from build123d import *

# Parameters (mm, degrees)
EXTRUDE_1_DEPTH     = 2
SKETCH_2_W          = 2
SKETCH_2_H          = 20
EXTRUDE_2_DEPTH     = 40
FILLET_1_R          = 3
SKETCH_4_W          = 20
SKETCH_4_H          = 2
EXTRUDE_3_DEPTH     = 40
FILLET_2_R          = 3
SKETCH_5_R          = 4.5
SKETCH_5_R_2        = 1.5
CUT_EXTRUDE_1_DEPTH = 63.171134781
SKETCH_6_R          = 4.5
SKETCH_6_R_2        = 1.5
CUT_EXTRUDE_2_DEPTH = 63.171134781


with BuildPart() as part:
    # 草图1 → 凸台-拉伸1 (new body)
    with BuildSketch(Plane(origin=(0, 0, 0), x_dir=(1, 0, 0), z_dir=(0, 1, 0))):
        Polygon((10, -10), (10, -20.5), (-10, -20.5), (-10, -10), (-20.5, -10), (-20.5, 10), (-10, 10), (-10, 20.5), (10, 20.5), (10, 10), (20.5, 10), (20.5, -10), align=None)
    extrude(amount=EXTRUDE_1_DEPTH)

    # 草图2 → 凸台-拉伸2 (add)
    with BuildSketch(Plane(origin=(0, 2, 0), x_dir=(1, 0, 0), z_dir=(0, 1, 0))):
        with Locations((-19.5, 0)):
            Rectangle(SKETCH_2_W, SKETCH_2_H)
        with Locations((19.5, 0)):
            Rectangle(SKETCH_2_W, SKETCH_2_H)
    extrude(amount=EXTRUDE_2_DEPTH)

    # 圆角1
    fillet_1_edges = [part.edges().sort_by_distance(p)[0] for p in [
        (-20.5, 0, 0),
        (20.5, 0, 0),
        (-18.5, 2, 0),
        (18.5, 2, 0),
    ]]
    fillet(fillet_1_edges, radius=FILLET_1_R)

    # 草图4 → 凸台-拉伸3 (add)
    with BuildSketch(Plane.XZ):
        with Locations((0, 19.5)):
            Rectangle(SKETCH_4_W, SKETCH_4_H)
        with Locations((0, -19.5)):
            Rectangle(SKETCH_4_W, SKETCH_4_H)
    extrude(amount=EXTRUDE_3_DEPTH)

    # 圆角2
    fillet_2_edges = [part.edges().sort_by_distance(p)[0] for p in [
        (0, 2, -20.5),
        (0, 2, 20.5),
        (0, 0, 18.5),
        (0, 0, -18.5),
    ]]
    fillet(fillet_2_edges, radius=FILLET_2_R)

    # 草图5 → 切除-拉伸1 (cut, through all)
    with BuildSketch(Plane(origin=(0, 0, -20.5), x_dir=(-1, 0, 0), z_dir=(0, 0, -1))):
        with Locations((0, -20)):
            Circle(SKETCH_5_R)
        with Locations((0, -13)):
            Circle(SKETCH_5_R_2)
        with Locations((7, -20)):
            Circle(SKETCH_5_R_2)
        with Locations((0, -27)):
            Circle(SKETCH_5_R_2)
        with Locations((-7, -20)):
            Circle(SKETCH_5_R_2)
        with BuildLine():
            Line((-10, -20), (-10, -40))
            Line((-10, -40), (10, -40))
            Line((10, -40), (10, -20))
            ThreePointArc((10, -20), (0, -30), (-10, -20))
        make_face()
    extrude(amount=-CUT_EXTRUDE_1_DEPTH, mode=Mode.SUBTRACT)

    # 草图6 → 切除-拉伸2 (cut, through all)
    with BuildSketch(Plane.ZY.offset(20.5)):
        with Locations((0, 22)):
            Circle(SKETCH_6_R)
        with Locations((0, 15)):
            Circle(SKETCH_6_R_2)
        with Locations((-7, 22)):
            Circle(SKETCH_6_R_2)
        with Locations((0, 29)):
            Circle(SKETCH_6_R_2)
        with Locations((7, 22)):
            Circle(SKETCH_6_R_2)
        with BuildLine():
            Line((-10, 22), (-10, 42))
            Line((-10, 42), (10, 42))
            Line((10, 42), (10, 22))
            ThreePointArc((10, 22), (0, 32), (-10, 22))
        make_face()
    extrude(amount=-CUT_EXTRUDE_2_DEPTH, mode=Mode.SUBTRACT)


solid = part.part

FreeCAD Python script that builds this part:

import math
import FreeCAD as App
import Part
import Sketcher

V = App.Vector


def edges_at(feature, points):
    """Names of the edges that pass closest to the given points."""
    edges = feature.Shape.Edges
    near = lambda p: min(range(len(edges)), key=lambda i: edges[i].distToShape(Part.Vertex(*p))[0])
    return sorted({f"Edge{near(p) + 1}" for p in points})

doc = App.newDocument("Part")
body = doc.addObject("PartDesign::Body", "Body")

sketch1 = body.newObject("Sketcher::SketchObject", "Sketch")
sketch1.AttachmentSupport = (doc.getObject("XZ_Plane"), [""])
sketch1.MapMode = "FlatFace"
sketch1.addGeometry([
    Part.LineSegment(V(10, 20, 0), V(10, 10, 0)),
    Part.LineSegment(V(10, 10, 0), V(20, 10, 0)),
    Part.LineSegment(V(20, 10, 0), V(20, -10, 0)),
    Part.LineSegment(V(20, -10, 0), V(10, -10, 0)),
    Part.LineSegment(V(10, -10, 0), V(10, -20, 0)),
    Part.LineSegment(V(10, -20, 0), V(-10, -20, 0)),
    Part.LineSegment(V(-10, -20, 0), V(-10, -10, 0)),
    Part.LineSegment(V(-10, -10, 0), V(-20, -10, 0)),
    Part.LineSegment(V(-20, -10, 0), V(-20, 10, 0)),
    Part.LineSegment(V(-20, 10, 0), V(-10, 10, 0)),
    Part.LineSegment(V(-10, 10, 0), V(-10, 20, 0)),
    Part.LineSegment(V(-10, 20, 0), V(10, 20, 0)),
], False)
sketch1.addConstraint([
    Sketcher.Constraint("Coincident", 0, 2, 1, 1),
    Sketcher.Constraint("Coincident", 1, 2, 2, 1),
    Sketcher.Constraint("Coincident", 2, 2, 3, 1),
    Sketcher.Constraint("Coincident", 3, 2, 4, 1),
    Sketcher.Constraint("Coincident", 4, 2, 5, 1),
    Sketcher.Constraint("Coincident", 5, 2, 6, 1),
    Sketcher.Constraint("Coincident", 6, 2, 7, 1),
    Sketcher.Constraint("Coincident", 7, 2, 8, 1),
    Sketcher.Constraint("Coincident", 8, 2, 9, 1),
    Sketcher.Constraint("Coincident", 9, 2, 10, 1),
    Sketcher.Constraint("Coincident", 10, 2, 11, 1),
    Sketcher.Constraint("Coincident", 11, 2, 0, 1),
    Sketcher.Constraint("Vertical", 0),
    Sketcher.Constraint("Horizontal", 1),
    Sketcher.Constraint("Vertical", 2),
    Sketcher.Constraint("Horizontal", 3),
    Sketcher.Constraint("Vertical", 4),
    Sketcher.Constraint("Horizontal", 5),
    Sketcher.Constraint("Vertical", 6),
    Sketcher.Constraint("Horizontal", 7),
    Sketcher.Constraint("Vertical", 8),
    Sketcher.Constraint("Horizontal", 9),
    Sketcher.Constraint("Vertical", 10),
    Sketcher.Constraint("Horizontal", 11),
    Sketcher.Constraint("Symmetric", 0, 2, 6, 2, -1, 1),
    Sketcher.Constraint("Symmetric", 2, 2, 8, 2, -1, 1),
    Sketcher.Constraint("Symmetric", 4, 2, 10, 2, -1, 1),
    Sketcher.Constraint("Symmetric", 3, 2, 6, 2, -2),
    Sketcher.Constraint("Equal", 9, 0),
    Sketcher.Constraint("Equal", 11, 2),
    Sketcher.Constraint("DistanceX", 5, 2, 5, 1, 20.0),
    Sketcher.Constraint("DistanceX", 1, 1, 1, 2, 10.5),
])
pad1 = body.newObject("PartDesign::Pad", "Pad")
pad1.Profile = sketch1
pad1.Length = 2
pad1.Reversed = True

sketch2 = body.newObject("Sketcher::SketchObject", "Sketch001")
sketch2.AttachmentSupport = (doc.getObject("XZ_Plane"), [""])
sketch2.MapMode = "FlatFace"
sketch2.AttachmentOffset = App.Placement(V(0, 0, -2), App.Rotation())
sketch2.addGeometry([
    Part.LineSegment(V(-20.5, -10, 0), V(-20.5, 10, 0)),
    Part.LineSegment(V(-20.5, 10, 0), V(-18.5, 10, 0)),
    Part.LineSegment(V(-18.5, 10, 0), V(-18.5, -10, 0)),
    Part.LineSegment(V(-18.5, -10, 0), V(-20.5, -10, 0)),
    Part.LineSegment(V(18.5, -10, 0), V(18.5, 10, 0)),
    Part.LineSegment(V(18.5, 10, 0), V(20.5, 10, 0)),
    Part.LineSegment(V(20.5, 10, 0), V(20.5, -10, 0)),
    Part.LineSegment(V(20.5, -10, 0), V(18.5, -10, 0)),
], False)
sketch2.addConstraint([
    Sketcher.Constraint("Coincident", 0, 2, 1, 1),
    Sketcher.Constraint("Coincident", 1, 2, 2, 1),
    Sketcher.Constraint("Coincident", 2, 2, 3, 1),
    Sketcher.Constraint("Coincident", 3, 2, 0, 1),
    Sketcher.Constraint("Coincident", 4, 2, 5, 1),
    Sketcher.Constraint("Coincident", 5, 2, 6, 1),
    Sketcher.Constraint("Coincident", 6, 2, 7, 1),
    Sketcher.Constraint("Coincident", 7, 2, 4, 1),
    Sketcher.Constraint("Vertical", 0),
    Sketcher.Constraint("Horizontal", 1),
    Sketcher.Constraint("Vertical", 2),
    Sketcher.Constraint("Horizontal", 3),
    Sketcher.Constraint("Vertical", 4),
    Sketcher.Constraint("Horizontal", 5),
    Sketcher.Constraint("Vertical", 6),
    Sketcher.Constraint("Horizontal", 7),
    Sketcher.Constraint("Symmetric", 2, 2, 4, 2, -1, 1),
    Sketcher.Constraint("Symmetric", 0, 2, 6, 2, -1, 1),
    Sketcher.Constraint("Horizontal", 1, 2, 4, 2),
    Sketcher.Constraint("DistanceX", 1, 1, 1, 2, 2.0),
    Sketcher.Constraint("DistanceY", 0, 1, 0, 2, 20.0),
    Sketcher.Constraint("DistanceX", 1, 2, 4, 2, 37.0),
])
pad2 = body.newObject("PartDesign::Pad", "Pad001")
pad2.Profile = sketch2
pad2.Length = 40
pad2.Reversed = True
doc.recompute()

fillet = body.newObject("PartDesign::Fillet", "Fillet")
fillet.Base = (pad2, edges_at(pad2, [
    (-20.5, 0, 0),
    (20.5, 0, 0),
    (-18.5, 2, 0),
    (18.5, 2, 0),
]))
fillet.Radius = 3

sketch3 = body.newObject("Sketcher::SketchObject", "Sketch002")
sketch3.AttachmentSupport = (doc.getObject("XZ_Plane"), [""])
sketch3.MapMode = "FlatFace"
sketch3.addGeometry([
    Part.LineSegment(V(-10, 20.5, 0), V(-10, 18.5, 0)),
    Part.LineSegment(V(-10, 18.5, 0), V(10, 18.5, 0)),
    Part.LineSegment(V(10, 18.5, 0), V(10, 20.5, 0)),
    Part.LineSegment(V(10, 20.5, 0), V(-10, 20.5, 0)),
    Part.LineSegment(V(-10, -18.5, 0), V(-10, -20.5, 0)),
    Part.LineSegment(V(-10, -20.5, 0), V(10, -20.5, 0)),
    Part.LineSegment(V(10, -20.5, 0), V(10, -18.5, 0)),
    Part.LineSegment(V(10, -18.5, 0), V(-10, -18.5, 0)),
], False)
sketch3.addConstraint([
    Sketcher.Constraint("Coincident", 0, 2, 1, 1),
    Sketcher.Constraint("Coincident", 1, 2, 2, 1),
    Sketcher.Constraint("Coincident", 2, 2, 3, 1),
    Sketcher.Constraint("Coincident", 3, 2, 0, 1),
    Sketcher.Constraint("Coincident", 4, 2, 5, 1),
    Sketcher.Constraint("Coincident", 5, 2, 6, 1),
    Sketcher.Constraint("Coincident", 6, 2, 7, 1),
    Sketcher.Constraint("Coincident", 7, 2, 4, 1),
    Sketcher.Constraint("Vertical", 0),
    Sketcher.Constraint("Horizontal", 1),
    Sketcher.Constraint("Vertical", 2),
    Sketcher.Constraint("Horizontal", 3),
    Sketcher.Constraint("Vertical", 4),
    Sketcher.Constraint("Horizontal", 5),
    Sketcher.Constraint("Vertical", 6),
    Sketcher.Constraint("Horizontal", 7),
    Sketcher.Constraint("Symmetric", 2, 2, 4, 2, -1, 1),
    Sketcher.Constraint("Symmetric", 0, 2, 6, 2, -1, 1),
    Sketcher.Constraint("Vertical", 3, 2, 4, 2),
    Sketcher.Constraint("DistanceX", 1, 1, 1, 2, 20.0),
    Sketcher.Constraint("DistanceY", 0, 2, 0, 1, 2.0),
    Sketcher.Constraint("DistanceY", 4, 2, 0, 2, 39.0),
])
pad3 = body.newObject("PartDesign::Pad", "Pad002")
pad3.Profile = sketch3
pad3.Length = 40
doc.recompute()

fillet2 = body.newObject("PartDesign::Fillet", "Fillet001")
fillet2.Base = (pad3, edges_at(pad3, [
    (0, 2, -20.5),
    (0, 2, 20.5),
    (0, 0, 18.5),
    (0, 0, -18.5),
]))
fillet2.Radius = 3

sketch4 = body.newObject("Sketcher::SketchObject", "Sketch003")
sketch4.AttachmentSupport = (doc.getObject("XY_Plane"), [""])
sketch4.MapMode = "FlatFace"
sketch4.AttachmentOffset = App.Placement(V(0, 0, -20.5), App.Rotation())
sketch4.addGeometry([
    Part.Circle(V(0, -20, 0), V(0, 0, 1), 4.5),
    Part.Circle(V(0, -13, 0), V(0, 0, 1), 1.5),
    Part.Circle(V(-7, -20, 0), V(0, 0, 1), 1.5),
    Part.Circle(V(0, -27, 0), V(0, 0, 1), 1.5),
    Part.Circle(V(7, -20, 0), V(0, 0, 1), 1.5),
    Part.LineSegment(V(10, -20, 0), V(10, -40, 0)),
    Part.LineSegment(V(10, -40, 0), V(-10, -40, 0)),
    Part.LineSegment(V(-10, -40, 0), V(-10, -20, 0)),
    Part.ArcOfCircle(Part.Circle(V(0, -20, 0), V(0, 0, 1), 10), math.radians(180), math.radians(360)),
], False)
sketch4.addConstraint([
    Sketcher.Constraint("Coincident", 5, 2, 6, 1),
    Sketcher.Constraint("Coincident", 6, 2, 7, 1),
    Sketcher.Constraint("Tangent", 7, 2, 8, 1),
    Sketcher.Constraint("Tangent", 8, 2, 5, 1),
    Sketcher.Constraint("Vertical", 5),
    Sketcher.Constraint("Horizontal", 6),
    Sketcher.Constraint("Vertical", 7),
    Sketcher.Constraint("Coincident", 8, 3, 0, 3),
    Sketcher.Constraint("Equal", 1, 2),
    Sketcher.Constraint("Equal", 2, 3),
    Sketcher.Constraint("Equal", 3, 4),
    Sketcher.Constraint("Symmetric", 2, 3, 4, 3, -2),
    Sketcher.Constraint("PointOnObject", 0, 3, -2),
    Sketcher.Constraint("PointOnObject", 1, 3, -2),
    Sketcher.Constraint("PointOnObject", 3, 3, -2),
    Sketcher.Constraint("Horizontal", 0, 3, 2, 3),
    Sketcher.Constraint("Equal", 6, 5),
    Sketcher.Constraint("Diameter", 0, 9.0),
    Sketcher.Constraint("Diameter", 1, 3.0),
    Sketcher.Constraint("Radius", 8, 10.0),
    Sketcher.Constraint("DistanceY", 0, 3, -1, 1, 20.0),
    Sketcher.Constraint("DistanceY", 1, 3, -1, 1, 13.0),
    Sketcher.Constraint("DistanceX", 2, 3, -1, 1, 7.0),
    Sketcher.Constraint("DistanceY", 3, 3, -1, 1, 27.0),
])
pocket1 = body.newObject("PartDesign::Pocket", "Pocket")
pocket1.Profile = sketch4
pocket1.Type = "ThroughAll"
pocket1.Reversed = True

sketch5 = body.newObject("Sketcher::SketchObject", "Sketch004")
sketch5.AttachmentSupport = (doc.getObject("YZ_Plane"), [""])
sketch5.MapMode = "FlatFace"
sketch5.AttachmentOffset = App.Placement(V(0, 0, -20.5), App.Rotation())
sketch5.addGeometry([
    Part.Circle(V(22, 0, 0), V(0, 0, 1), 4.5),
    Part.Circle(V(15, 0, 0), V(0, 0, 1), 1.5),
    Part.Circle(V(22, -7, 0), V(0, 0, 1), 1.5),
    Part.Circle(V(29, 0, 0), V(0, 0, 1), 1.5),
    Part.Circle(V(22, 7, 0), V(0, 0, 1), 1.5),
    Part.LineSegment(V(42, -10, 0), V(22, -10, 0)),
    Part.ArcOfCircle(Part.Circle(V(22, 0, 0), V(0, 0, 1), 10), math.radians(-90), math.radians(90)),
    Part.LineSegment(V(22, 10, 0), V(42, 10, 0)),
    Part.LineSegment(V(42, 10, 0), V(42, -10, 0)),
], False)
sketch5.addConstraint([
    Sketcher.Constraint("Tangent", 5, 2, 6, 1),
    Sketcher.Constraint("Tangent", 6, 2, 7, 1),
    Sketcher.Constraint("Coincident", 7, 2, 8, 1),
    Sketcher.Constraint("Coincident", 8, 2, 5, 1),
    Sketcher.Constraint("Horizontal", 5),
    Sketcher.Constraint("Horizontal", 7),
    Sketcher.Constraint("Vertical", 8),
    Sketcher.Constraint("Coincident", 6, 3, 0, 3),
    Sketcher.Constraint("Equal", 1, 2),
    Sketcher.Constraint("Equal", 2, 3),
    Sketcher.Constraint("Equal", 3, 4),
    Sketcher.Constraint("Symmetric", 2, 3, 4, 3, -1),
    Sketcher.Constraint("PointOnObject", 0, 3, -1),
    Sketcher.Constraint("PointOnObject", 1, 3, -1),
    Sketcher.Constraint("PointOnObject", 3, 3, -1),
    Sketcher.Constraint("Vertical", 0, 3, 2, 3),
    Sketcher.Constraint("Equal", 7, 8),
    Sketcher.Constraint("Diameter", 0, 9.0),
    Sketcher.Constraint("Diameter", 1, 3.0),
    Sketcher.Constraint("Radius", 6, 10.0),
    Sketcher.Constraint("DistanceX", -1, 1, 0, 3, 22.0),
    Sketcher.Constraint("DistanceX", -1, 1, 1, 3, 15.0),
    Sketcher.Constraint("DistanceY", 2, 3, -1, 1, 7.0),
    Sketcher.Constraint("DistanceX", -1, 1, 3, 3, 29.0),
])
pocket2 = body.newObject("PartDesign::Pocket", "Pocket001")
pocket2.Profile = sketch5
pocket2.Type = "ThroughAll"
pocket2.Reversed = True

doc.recompute()
